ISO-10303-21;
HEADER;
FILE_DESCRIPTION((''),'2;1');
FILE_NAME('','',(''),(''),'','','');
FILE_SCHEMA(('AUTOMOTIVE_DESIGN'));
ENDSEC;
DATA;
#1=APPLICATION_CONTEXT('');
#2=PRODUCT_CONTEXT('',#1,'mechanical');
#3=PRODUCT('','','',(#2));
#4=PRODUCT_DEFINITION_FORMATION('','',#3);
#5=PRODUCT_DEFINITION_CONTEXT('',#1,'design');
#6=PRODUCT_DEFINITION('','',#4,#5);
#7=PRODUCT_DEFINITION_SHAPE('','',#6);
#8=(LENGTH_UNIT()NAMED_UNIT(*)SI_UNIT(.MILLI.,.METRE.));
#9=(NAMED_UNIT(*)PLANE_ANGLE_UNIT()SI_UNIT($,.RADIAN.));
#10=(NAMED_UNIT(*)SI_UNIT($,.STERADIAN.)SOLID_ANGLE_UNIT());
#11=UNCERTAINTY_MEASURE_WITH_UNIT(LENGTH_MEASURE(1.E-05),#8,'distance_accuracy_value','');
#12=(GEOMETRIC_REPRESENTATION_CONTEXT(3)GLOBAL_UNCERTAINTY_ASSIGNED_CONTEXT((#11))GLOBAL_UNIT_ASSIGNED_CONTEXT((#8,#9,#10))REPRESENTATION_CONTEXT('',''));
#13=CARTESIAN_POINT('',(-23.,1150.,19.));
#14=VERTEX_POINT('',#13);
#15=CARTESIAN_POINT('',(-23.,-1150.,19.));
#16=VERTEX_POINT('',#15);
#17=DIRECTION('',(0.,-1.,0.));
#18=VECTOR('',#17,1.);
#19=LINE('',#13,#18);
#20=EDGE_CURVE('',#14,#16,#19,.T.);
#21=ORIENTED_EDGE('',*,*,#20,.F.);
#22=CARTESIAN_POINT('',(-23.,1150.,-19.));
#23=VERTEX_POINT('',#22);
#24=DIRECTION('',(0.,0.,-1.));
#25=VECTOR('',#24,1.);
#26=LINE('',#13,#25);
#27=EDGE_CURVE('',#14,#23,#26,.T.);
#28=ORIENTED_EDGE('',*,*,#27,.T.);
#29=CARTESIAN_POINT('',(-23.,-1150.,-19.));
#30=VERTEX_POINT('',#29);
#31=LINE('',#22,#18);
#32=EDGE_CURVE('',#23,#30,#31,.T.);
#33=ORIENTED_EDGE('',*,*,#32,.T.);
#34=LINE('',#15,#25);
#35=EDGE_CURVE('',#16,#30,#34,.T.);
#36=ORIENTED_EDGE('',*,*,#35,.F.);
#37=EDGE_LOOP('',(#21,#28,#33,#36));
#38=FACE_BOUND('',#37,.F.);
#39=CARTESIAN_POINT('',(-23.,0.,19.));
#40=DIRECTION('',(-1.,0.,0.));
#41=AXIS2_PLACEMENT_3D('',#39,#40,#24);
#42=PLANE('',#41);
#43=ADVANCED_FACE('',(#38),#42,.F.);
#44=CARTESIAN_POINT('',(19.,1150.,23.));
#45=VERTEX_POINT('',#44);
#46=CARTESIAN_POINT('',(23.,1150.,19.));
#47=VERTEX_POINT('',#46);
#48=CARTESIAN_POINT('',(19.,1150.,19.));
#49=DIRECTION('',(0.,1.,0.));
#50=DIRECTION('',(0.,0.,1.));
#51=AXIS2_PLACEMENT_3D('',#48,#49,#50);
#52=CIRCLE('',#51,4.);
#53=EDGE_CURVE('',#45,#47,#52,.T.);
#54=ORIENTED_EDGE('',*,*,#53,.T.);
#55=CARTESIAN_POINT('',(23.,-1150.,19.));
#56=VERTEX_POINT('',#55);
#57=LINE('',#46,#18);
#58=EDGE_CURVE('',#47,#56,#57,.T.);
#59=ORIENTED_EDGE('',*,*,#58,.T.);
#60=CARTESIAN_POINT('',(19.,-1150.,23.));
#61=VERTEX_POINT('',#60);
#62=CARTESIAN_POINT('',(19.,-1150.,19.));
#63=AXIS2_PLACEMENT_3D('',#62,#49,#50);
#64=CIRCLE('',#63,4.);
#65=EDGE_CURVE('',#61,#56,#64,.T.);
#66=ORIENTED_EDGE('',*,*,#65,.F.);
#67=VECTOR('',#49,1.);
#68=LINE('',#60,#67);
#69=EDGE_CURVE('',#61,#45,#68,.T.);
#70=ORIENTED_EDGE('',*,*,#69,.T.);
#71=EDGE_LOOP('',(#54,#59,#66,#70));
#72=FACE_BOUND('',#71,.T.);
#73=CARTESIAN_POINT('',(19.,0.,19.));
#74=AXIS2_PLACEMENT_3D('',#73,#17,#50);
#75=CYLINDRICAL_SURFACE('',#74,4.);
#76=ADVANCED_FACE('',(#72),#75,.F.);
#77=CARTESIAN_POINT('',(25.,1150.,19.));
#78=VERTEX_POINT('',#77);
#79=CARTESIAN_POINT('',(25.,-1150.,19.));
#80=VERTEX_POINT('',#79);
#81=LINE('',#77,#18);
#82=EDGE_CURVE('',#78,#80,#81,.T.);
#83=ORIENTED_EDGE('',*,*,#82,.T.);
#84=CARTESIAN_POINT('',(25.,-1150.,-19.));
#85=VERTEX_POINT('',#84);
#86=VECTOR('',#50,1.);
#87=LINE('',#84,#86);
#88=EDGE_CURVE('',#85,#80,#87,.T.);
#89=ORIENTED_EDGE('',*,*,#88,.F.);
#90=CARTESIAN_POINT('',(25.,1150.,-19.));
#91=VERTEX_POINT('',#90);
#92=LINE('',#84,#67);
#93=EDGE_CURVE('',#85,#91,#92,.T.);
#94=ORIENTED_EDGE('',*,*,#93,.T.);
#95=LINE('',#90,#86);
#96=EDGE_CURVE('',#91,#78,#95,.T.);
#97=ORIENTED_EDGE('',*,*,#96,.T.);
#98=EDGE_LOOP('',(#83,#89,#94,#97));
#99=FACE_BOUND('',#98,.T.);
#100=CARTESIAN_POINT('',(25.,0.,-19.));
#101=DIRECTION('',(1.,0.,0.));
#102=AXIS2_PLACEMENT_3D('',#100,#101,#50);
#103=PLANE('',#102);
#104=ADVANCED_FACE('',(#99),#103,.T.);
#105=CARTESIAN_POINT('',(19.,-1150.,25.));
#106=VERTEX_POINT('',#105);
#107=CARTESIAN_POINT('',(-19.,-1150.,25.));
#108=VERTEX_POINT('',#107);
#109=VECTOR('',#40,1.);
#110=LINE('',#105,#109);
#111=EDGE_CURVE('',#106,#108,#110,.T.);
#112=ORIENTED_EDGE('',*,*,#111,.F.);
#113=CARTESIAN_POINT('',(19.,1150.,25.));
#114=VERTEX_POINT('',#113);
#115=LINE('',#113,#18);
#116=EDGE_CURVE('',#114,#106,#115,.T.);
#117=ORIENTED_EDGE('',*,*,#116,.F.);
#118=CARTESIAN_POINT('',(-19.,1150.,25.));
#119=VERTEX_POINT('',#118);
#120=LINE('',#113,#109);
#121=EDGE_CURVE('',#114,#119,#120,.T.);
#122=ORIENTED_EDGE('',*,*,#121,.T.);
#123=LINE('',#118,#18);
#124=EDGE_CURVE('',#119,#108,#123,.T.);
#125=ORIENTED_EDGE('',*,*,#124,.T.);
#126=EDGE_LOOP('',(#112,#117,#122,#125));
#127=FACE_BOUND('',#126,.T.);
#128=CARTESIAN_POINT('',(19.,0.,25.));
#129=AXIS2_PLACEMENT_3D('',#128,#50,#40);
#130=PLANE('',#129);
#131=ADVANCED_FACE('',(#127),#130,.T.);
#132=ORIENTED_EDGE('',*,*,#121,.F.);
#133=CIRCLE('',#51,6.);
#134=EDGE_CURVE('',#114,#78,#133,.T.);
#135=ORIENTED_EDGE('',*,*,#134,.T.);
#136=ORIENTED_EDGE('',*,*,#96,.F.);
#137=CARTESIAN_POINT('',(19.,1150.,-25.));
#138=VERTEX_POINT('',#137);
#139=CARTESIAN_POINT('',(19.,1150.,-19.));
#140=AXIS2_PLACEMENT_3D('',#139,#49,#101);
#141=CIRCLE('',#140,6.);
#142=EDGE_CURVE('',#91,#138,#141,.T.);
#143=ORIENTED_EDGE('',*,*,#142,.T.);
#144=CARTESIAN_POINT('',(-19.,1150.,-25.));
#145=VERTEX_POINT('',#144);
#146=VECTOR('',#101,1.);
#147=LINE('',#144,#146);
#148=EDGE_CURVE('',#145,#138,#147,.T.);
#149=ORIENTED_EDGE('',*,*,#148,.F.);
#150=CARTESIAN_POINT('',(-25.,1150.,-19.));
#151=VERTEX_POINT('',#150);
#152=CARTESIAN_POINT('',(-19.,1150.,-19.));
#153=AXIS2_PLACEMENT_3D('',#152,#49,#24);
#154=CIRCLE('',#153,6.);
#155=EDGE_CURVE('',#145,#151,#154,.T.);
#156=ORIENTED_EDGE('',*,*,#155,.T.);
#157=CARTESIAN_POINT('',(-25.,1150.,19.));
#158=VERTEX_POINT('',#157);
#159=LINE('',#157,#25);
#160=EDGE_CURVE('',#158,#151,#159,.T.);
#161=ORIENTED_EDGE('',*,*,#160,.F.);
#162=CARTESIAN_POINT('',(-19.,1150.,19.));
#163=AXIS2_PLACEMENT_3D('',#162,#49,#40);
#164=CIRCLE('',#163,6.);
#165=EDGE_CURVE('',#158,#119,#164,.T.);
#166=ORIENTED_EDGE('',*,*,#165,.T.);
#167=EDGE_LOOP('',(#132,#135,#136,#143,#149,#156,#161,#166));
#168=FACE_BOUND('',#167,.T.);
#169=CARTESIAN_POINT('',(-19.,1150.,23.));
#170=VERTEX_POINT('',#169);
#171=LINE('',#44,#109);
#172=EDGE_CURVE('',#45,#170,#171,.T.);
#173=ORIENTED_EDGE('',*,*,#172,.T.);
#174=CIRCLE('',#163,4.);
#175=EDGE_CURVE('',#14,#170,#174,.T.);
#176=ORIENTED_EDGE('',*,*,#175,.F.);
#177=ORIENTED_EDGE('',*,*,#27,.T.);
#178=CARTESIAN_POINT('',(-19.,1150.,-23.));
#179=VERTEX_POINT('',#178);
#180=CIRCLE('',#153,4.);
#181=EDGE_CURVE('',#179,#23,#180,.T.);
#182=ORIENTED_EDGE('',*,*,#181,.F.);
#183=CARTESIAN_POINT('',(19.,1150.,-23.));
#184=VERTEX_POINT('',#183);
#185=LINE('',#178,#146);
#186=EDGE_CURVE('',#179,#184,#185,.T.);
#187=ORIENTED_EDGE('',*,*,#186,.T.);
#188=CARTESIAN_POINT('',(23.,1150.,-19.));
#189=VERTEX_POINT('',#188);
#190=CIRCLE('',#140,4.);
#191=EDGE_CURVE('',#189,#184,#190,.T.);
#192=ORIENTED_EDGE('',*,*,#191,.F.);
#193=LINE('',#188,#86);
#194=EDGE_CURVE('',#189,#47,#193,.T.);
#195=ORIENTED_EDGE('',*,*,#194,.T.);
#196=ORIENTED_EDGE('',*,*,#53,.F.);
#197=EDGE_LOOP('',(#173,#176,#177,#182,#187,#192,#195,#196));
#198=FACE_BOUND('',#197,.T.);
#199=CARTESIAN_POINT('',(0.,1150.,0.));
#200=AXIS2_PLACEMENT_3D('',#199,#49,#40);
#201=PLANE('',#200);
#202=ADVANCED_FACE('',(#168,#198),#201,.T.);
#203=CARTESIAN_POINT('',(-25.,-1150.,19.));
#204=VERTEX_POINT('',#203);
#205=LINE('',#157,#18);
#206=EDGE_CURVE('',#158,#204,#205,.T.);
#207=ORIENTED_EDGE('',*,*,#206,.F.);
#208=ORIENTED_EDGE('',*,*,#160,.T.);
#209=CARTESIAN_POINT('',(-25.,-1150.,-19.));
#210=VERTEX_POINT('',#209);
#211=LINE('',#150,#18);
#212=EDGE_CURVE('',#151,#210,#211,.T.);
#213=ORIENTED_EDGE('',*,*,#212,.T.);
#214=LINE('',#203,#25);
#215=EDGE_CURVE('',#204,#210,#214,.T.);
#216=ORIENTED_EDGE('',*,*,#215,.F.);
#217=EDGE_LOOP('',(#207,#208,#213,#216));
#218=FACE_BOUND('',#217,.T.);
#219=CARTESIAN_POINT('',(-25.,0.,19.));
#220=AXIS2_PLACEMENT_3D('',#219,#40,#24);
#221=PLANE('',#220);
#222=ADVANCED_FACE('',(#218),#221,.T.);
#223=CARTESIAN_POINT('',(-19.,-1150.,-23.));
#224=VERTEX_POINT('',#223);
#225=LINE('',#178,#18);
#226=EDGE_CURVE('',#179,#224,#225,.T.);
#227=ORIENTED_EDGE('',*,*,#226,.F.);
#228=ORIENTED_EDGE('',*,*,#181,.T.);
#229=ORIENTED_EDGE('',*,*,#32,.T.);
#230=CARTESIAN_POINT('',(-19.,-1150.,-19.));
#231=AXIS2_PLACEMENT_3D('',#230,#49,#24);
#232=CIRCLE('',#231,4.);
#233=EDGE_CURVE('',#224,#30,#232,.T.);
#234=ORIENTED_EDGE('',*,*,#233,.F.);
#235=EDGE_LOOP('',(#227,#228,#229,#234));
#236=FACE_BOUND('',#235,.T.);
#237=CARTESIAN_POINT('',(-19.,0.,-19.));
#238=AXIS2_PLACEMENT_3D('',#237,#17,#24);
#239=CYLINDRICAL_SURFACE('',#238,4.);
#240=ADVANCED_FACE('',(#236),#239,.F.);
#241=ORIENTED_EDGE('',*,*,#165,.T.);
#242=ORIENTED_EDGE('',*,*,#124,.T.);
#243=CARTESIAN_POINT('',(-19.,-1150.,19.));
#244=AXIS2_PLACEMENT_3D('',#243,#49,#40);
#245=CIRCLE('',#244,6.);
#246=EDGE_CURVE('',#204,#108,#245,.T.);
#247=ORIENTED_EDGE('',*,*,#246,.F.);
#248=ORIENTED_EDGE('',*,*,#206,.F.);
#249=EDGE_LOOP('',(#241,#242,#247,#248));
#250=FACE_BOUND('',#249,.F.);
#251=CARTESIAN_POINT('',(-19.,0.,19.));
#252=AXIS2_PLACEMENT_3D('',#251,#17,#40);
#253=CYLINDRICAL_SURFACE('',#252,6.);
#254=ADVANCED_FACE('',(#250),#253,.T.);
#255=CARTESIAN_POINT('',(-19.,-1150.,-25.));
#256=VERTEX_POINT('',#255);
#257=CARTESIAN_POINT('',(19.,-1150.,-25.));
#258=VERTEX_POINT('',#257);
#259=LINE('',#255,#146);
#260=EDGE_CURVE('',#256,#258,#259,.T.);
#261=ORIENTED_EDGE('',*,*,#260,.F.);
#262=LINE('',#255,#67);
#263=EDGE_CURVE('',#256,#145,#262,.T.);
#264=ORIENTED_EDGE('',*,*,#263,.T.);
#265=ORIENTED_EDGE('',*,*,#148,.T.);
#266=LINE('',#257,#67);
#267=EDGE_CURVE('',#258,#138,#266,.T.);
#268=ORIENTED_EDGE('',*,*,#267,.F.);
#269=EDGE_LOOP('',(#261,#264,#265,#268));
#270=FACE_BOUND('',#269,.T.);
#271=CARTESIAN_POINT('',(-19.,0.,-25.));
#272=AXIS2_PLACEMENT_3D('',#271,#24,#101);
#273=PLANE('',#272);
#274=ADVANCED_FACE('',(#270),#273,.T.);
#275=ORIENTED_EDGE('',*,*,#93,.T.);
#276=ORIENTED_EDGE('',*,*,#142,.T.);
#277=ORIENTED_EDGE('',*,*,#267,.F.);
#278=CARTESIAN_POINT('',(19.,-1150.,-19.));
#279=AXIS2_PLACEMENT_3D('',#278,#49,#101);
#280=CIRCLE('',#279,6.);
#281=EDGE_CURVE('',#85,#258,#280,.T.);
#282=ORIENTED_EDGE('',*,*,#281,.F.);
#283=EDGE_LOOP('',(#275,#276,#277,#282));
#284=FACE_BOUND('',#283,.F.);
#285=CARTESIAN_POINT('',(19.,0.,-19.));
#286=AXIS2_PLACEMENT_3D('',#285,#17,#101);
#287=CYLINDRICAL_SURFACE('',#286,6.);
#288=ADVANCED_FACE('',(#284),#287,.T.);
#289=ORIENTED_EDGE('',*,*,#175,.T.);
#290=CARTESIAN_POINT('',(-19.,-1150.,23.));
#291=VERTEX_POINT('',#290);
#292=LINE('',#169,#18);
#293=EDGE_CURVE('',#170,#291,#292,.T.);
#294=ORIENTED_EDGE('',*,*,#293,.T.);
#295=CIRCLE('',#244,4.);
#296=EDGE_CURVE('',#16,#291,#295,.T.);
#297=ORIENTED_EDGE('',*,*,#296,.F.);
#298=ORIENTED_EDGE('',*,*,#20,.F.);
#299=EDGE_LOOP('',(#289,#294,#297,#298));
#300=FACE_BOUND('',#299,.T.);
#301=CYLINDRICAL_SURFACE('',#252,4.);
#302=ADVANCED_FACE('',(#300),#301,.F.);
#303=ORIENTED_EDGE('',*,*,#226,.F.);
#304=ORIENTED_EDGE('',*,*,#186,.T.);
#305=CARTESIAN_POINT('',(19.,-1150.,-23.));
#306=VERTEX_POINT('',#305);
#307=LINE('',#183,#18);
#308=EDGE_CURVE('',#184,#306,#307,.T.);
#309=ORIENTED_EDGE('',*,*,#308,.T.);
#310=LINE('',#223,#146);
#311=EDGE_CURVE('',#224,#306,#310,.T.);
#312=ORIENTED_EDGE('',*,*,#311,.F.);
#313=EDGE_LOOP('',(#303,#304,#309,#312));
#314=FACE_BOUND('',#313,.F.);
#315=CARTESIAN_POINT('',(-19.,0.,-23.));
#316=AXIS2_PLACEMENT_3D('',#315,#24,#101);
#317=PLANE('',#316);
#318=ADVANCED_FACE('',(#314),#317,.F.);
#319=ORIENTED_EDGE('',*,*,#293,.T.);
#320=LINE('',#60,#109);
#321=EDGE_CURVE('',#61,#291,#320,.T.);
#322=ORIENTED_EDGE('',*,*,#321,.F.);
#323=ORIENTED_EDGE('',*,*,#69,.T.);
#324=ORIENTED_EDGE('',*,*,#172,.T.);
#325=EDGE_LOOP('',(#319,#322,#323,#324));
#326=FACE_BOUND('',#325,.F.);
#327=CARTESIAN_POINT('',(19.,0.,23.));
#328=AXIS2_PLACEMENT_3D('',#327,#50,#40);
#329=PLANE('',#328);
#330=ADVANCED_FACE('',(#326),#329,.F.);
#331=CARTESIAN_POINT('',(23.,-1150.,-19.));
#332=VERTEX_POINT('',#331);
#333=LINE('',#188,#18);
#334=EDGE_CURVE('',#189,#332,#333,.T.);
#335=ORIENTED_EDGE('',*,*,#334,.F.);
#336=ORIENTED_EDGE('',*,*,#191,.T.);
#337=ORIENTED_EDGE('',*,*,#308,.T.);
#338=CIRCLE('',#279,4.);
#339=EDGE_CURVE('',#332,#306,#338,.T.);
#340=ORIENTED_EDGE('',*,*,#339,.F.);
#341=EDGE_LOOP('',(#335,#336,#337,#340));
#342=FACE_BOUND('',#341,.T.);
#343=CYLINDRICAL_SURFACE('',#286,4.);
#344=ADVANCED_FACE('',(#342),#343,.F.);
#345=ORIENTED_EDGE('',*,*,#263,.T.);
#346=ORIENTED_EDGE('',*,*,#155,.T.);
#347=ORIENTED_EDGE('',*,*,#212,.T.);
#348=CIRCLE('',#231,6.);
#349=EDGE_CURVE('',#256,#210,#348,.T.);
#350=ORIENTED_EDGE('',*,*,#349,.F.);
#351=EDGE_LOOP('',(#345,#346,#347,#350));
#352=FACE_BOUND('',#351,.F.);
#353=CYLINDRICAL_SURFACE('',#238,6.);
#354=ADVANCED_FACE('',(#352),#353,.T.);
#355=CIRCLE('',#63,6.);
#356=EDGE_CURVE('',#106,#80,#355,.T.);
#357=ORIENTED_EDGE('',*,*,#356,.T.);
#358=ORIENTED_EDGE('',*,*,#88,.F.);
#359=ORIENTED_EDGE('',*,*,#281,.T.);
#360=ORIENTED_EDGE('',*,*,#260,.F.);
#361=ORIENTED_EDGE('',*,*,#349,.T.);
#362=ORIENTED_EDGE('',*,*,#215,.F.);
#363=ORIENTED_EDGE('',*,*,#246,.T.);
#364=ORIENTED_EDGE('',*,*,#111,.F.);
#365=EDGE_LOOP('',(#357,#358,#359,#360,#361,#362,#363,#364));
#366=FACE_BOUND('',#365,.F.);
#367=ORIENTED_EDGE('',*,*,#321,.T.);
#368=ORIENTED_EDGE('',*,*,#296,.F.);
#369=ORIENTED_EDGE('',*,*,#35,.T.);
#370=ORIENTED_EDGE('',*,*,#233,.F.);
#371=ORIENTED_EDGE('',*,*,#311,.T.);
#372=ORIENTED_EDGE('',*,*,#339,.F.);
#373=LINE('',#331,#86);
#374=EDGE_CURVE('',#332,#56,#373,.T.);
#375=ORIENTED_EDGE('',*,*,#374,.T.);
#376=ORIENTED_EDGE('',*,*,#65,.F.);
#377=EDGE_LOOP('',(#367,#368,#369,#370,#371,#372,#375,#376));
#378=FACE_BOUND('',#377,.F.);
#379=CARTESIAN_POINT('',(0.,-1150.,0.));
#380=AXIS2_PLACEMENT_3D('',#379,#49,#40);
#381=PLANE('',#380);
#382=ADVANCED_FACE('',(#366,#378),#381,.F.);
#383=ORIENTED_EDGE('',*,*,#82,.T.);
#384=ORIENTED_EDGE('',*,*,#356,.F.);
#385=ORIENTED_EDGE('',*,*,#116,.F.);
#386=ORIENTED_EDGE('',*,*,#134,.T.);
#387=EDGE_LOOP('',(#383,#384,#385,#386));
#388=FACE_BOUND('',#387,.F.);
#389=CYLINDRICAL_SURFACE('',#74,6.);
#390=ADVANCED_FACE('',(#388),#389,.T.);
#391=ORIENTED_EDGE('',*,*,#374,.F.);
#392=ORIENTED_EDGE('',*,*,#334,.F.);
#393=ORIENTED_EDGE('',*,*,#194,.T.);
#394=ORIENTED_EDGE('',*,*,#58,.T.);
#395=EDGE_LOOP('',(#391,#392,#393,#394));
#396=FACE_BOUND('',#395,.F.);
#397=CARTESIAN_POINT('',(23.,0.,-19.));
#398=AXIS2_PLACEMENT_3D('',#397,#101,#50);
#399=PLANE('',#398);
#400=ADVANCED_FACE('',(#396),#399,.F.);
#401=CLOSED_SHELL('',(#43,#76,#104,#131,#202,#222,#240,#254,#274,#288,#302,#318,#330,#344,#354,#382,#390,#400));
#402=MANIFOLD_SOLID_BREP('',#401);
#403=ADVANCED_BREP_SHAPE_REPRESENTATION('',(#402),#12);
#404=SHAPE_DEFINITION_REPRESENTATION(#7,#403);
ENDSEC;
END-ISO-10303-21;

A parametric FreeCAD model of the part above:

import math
import FreeCAD as App
import Part
import Sketcher
from FreeCAD import Vector

doc = App.newDocument("Part")
body = doc.addObject("PartDesign::Body", "Body")

# Sketch on XZ plane
sketch1 = doc.addObject("Sketcher::SketchObject", "Sketch")
body.addObject(sketch1)
sketch1.AttachmentSupport = (doc.XZ_Plane, [""])
sketch1.MapMode = "FlatFace"
sketch1.addGeometry(Part.LineSegment(Vector(25, 19, 0), Vector(25, -19, 0)), False)
sketch1.addGeometry(Part.ArcOfCircle(Part.Circle(Vector(19, -19, 0), Vector(0, 0, 1), 6), math.radians(-90), math.radians(0)), False)
sketch1.addGeometry(Part.LineSegment(Vector(19, -25, 0), Vector(-19, -25, 0)), False)
sketch1.addGeometry(Part.ArcOfCircle(Part.Circle(Vector(-19, -19, 0), Vector(0, 0, 1), 6), math.radians(180), math.radians(270)), False)
sketch1.addGeometry(Part.LineSegment(Vector(-25, -19, 0), Vector(-25, 19, 0)), False)
sketch1.addGeometry(Part.ArcOfCircle(Part.Circle(Vector(-19, 19, 0), Vector(0, 0, 1), 6), math.radians(90), math.radians(180)), False)
sketch1.addGeometry(Part.LineSegment(Vector(-19, 25, 0), Vector(19, 25, 0)), False)
sketch1.addGeometry(Part.ArcOfCircle(Part.Circle(Vector(19, 19, 0), Vector(0, 0, 1), 6), math.radians(0), math.radians(90)), False)
sketch1.addGeometry(Part.ArcOfCircle(Part.Circle(Vector(19, 19, 0), Vector(0, 0, 1), 4), math.radians(0), math.radians(90)), False)
sketch1.addGeometry(Part.LineSegment(Vector(19, 23, 0), Vector(-19, 23, 0)), False)
sketch1.addGeometry(Part.ArcOfCircle(Part.Circle(Vector(-19, 19, 0), Vector(0, 0, 1), 4), math.radians(90), math.radians(180)), False)
sketch1.addGeometry(Part.LineSegment(Vector(-23, 19, 0), Vector(-23, -19, 0)), False)
sketch1.addGeometry(Part.ArcOfCircle(Part.Circle(Vector(-19, -19, 0), Vector(0, 0, 1), 4), math.radians(180), math.radians(270)), False)
sketch1.addGeometry(Part.LineSegment(Vector(-19, -23, 0), Vector(19, -23, 0)), False)
sketch1.addGeometry(Part.ArcOfCircle(Part.Circle(Vector(19, -19, 0), Vector(0, 0, 1), 4), math.radians(-90), math.radians(0)), False)
sketch1.addGeometry(Part.LineSegment(Vector(23, -19, 0), Vector(23, 19, 0)), False)
sketch1.addConstraint(Sketcher.Constraint("Tangent", 0, 2, 1, 2))
sketch1.addConstraint(Sketcher.Constraint("Tangent", 1, 1, 2, 1))
sketch1.addConstraint(Sketcher.Constraint("Tangent", 2, 2, 3, 2))
sketch1.addConstraint(Sketcher.Constraint("Tangent", 3, 1, 4, 1))
sketch1.addConstraint(Sketcher.Constraint("Tangent", 4, 2, 5, 2))
sketch1.addConstraint(Sketcher.Constraint("Tangent", 5, 1, 6, 1))
sketch1.addConstraint(Sketcher.Constraint("Tangent", 6, 2, 7, 2))
sketch1.addConstraint(Sketcher.Constraint("Tangent", 7, 1, 0, 1))
sketch1.addConstraint(Sketcher.Constraint("Tangent", 8, 2, 9, 1))
sketch1.addConstraint(Sketcher.Constraint("Tangent", 9, 2, 10, 1))
sketch1.addConstraint(Sketcher.Constraint("Tangent", 10, 2, 11, 1))
sketch1.addConstraint(Sketcher.Constraint("Tangent", 11, 2, 12, 1))
sketch1.addConstraint(Sketcher.Constraint("Tangent", 12, 2, 13, 1))
sketch1.addConstraint(Sketcher.Constraint("Tangent", 13, 2, 14, 1))
sketch1.addConstraint(Sketcher.Constraint("Tangent", 14, 2, 15, 1))
sketch1.addConstraint(Sketcher.Constraint("Tangent", 15, 2, 8, 1))
sketch1.addConstraint(Sketcher.Constraint("Vertical", 0))
sketch1.addConstraint(Sketcher.Constraint("Horizontal", 2))
sketch1.addConstraint(Sketcher.Constraint("Vertical", 4))
sketch1.addConstraint(Sketcher.Constraint("Horizontal", 6))
sketch1.addConstraint(Sketcher.Constraint("Horizontal", 9))
sketch1.addConstraint(Sketcher.Constraint("Vertical", 11))
sketch1.addConstraint(Sketcher.Constraint("Horizontal", 13))
sketch1.addConstraint(Sketcher.Constraint("Vertical", 15))
sketch1.addConstraint(Sketcher.Constraint("Coincident", 8, 3, 7, 3))
sketch1.addConstraint(Sketcher.Constraint("Coincident", 10, 3, 5, 3))
sketch1.addConstraint(Sketcher.Constraint("Coincident", 12, 3, 3, 3))
sketch1.addConstraint(Sketcher.Constraint("Equal", 1, 3))
sketch1.addConstraint(Sketcher.Constraint("Equal", 3, 5))
sketch1.addConstraint(Sketcher.Constraint("Equal", 5, 7))
sketch1.addConstraint(Sketcher.Constraint("Equal", 12, 14))
sketch1.addConstraint(Sketcher.Constraint("Symmetric", 1, 3, 5, 3, -1, 1))
sketch1.addConstraint(Sketcher.Constraint("Equal", 13, 0))
sketch1.addConstraint(Sketcher.Constraint("Radius", 1, 6.0))
sketch1.addConstraint(Sketcher.Constraint("Radius", 8, 4.0))
sketch1.addConstraint(Sketcher.Constraint("DistanceX", 2, 2, 2, 1, 38.0))
pad1 = doc.addObject("PartDesign::Pad", "Pad")
body.addObject(pad1)
pad1.Profile = sketch1
pad1.Length = 2300
pad1.Midplane = True

doc.recompute()
